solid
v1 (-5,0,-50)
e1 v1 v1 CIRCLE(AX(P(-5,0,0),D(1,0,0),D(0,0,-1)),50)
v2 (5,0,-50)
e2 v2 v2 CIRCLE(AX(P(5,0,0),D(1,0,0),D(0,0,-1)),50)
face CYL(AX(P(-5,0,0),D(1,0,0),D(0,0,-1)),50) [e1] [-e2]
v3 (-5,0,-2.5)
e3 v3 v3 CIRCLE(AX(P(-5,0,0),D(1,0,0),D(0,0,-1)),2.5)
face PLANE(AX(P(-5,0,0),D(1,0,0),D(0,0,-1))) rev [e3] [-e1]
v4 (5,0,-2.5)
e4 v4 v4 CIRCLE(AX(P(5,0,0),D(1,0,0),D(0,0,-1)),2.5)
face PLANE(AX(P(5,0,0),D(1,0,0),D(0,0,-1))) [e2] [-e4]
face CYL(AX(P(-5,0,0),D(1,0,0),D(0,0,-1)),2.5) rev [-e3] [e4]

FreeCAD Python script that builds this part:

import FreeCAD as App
import Part
import Sketcher
from FreeCAD import Vector
Q = App.Units.Quantity

doc = App.newDocument("Part")
body = doc.addObject("PartDesign::Body", "Body")

# Sketch on YZ plane
sketch1 = body.newObject("Sketcher::SketchObject", "Sketch")
sketch1.AttachmentSupport = (doc.getObject("YZ_Plane"), [""])
sketch1.MapMode = "FlatFace"
sketch1.addGeometry(Part.Circle(Vector(0, 0, 0), Vector(0, 0, 1), 50), False)
sketch1.addConstraint([
    Sketcher.Constraint("Coincident", 0, 3, -1, 1),
    Sketcher.Constraint("Diameter", 0, Q("100 mm")),
])
pad1 = body.newObject("PartDesign::Pad", "Pad")
pad1.Profile = sketch1
pad1.Type = "TwoLengths"
pad1.Length = 5
pad1.Length2 = 5

# Sketch on YZ plane
sketch2 = body.newObject("Sketcher::SketchObject", "Sketch001")
sketch2.AttachmentSupport = (doc.getObject("YZ_Plane"), [""])
sketch2.MapMode = "FlatFace"
sketch2.AttachmentOffset = App.Placement(Vector(0, 0, 5), App.Rotation())
sketch2.addGeometry(Part.Circle(Vector(0, 0, 0), Vector(0, 0, 1), 2.5), False)
sketch2.addConstraint([
    Sketcher.Constraint("Coincident", 0, 3, -1, 1),
    Sketcher.Constraint("Diameter", 0, Q("5 mm")),
])
pocket1 = body.newObject("PartDesign::Pocket", "Pocket")
pocket1.Profile = sketch2
pocket1.Type = "ThroughAll"

doc.recompute()
